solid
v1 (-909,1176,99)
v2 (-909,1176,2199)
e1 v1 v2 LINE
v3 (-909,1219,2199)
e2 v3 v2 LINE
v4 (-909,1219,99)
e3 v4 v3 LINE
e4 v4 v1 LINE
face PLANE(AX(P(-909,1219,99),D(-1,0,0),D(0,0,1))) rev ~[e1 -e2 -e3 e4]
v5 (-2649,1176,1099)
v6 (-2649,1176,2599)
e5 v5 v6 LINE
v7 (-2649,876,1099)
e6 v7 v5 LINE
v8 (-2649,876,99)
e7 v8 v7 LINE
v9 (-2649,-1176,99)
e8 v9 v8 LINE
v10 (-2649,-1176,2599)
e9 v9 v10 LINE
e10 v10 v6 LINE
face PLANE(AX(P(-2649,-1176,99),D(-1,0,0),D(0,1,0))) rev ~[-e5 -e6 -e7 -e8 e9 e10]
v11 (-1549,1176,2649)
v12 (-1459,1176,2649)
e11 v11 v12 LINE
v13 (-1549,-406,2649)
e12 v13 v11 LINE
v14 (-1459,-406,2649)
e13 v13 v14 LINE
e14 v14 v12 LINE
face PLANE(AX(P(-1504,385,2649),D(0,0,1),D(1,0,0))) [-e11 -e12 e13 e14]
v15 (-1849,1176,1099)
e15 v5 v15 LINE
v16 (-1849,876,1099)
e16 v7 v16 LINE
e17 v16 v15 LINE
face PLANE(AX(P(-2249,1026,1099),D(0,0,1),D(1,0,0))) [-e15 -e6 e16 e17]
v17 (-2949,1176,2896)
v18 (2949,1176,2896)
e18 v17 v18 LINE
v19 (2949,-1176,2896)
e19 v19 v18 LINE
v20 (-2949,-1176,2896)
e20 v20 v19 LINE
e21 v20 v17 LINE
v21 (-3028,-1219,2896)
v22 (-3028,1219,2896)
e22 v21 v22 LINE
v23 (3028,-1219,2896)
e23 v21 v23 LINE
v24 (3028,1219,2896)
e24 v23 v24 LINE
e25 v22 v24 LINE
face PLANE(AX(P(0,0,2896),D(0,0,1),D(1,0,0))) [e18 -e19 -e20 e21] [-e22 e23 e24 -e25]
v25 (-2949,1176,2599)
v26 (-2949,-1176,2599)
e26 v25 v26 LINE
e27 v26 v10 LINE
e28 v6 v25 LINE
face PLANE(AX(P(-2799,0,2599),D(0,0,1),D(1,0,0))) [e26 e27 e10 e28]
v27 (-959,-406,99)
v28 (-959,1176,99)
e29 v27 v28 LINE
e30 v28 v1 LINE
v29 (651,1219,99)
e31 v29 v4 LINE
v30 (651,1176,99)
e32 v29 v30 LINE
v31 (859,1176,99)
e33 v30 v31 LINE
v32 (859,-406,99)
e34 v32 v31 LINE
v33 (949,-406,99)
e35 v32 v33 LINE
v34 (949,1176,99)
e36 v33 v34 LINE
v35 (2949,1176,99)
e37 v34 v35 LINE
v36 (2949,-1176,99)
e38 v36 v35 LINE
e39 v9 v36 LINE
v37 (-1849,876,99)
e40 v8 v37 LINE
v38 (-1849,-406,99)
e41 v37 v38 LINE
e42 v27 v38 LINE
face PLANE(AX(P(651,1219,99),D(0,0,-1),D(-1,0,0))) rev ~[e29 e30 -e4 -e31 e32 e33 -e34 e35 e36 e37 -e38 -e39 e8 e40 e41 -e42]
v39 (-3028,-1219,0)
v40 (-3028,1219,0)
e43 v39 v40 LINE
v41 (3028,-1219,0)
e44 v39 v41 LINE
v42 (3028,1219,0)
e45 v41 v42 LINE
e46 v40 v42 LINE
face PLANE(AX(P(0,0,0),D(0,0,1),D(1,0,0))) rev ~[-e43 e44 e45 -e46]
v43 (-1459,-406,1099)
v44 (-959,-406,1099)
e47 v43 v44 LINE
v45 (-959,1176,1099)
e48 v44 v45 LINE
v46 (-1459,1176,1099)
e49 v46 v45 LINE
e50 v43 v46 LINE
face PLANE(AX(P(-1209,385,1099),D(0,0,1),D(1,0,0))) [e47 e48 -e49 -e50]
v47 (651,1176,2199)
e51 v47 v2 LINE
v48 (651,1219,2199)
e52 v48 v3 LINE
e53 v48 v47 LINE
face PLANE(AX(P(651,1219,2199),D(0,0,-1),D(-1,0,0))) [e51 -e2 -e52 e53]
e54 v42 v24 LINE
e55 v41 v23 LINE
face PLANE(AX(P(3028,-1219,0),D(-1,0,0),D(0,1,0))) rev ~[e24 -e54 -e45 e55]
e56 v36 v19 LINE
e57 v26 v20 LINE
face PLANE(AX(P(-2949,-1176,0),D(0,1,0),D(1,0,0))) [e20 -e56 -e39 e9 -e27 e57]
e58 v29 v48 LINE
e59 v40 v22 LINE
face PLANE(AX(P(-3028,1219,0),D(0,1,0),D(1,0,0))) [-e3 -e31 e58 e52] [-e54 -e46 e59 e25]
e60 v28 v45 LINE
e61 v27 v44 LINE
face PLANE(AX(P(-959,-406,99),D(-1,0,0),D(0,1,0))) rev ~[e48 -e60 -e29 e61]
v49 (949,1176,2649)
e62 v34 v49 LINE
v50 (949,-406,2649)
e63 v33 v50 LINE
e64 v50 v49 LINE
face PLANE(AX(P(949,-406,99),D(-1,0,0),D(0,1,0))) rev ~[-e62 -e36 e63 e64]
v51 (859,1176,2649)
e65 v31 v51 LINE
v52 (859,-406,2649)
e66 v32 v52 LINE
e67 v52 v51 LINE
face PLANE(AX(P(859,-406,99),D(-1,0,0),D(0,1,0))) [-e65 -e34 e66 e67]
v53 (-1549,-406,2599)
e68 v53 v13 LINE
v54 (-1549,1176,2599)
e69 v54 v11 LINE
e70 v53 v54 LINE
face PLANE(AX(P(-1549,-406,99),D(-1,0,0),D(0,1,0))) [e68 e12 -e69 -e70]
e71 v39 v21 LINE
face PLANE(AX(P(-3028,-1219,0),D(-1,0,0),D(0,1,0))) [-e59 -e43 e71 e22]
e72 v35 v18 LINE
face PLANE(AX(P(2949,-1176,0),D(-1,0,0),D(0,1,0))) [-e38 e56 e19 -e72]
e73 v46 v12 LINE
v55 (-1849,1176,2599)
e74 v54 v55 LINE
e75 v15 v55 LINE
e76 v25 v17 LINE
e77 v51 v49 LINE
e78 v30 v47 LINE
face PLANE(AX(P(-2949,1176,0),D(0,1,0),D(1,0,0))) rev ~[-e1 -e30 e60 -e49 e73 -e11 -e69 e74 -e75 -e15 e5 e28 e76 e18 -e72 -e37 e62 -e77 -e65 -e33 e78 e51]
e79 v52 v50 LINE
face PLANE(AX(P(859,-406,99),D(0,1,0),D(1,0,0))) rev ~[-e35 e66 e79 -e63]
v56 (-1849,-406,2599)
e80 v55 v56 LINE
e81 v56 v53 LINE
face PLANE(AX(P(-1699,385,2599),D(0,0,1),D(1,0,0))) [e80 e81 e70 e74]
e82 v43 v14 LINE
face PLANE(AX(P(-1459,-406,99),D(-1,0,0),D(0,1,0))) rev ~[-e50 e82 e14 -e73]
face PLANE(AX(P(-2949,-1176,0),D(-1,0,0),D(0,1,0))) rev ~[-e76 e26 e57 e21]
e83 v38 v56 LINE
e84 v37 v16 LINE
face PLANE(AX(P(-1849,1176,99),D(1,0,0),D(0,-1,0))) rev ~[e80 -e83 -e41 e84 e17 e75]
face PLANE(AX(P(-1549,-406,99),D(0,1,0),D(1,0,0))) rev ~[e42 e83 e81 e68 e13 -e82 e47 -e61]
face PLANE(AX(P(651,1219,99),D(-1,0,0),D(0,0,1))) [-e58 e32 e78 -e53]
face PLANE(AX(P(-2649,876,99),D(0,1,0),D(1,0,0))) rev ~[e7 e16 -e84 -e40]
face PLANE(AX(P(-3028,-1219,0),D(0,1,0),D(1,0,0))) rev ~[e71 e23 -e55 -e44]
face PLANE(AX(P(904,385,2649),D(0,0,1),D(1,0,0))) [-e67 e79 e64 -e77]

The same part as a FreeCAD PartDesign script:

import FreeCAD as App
import Part
import Sketcher
from FreeCAD import Vector

doc = App.newDocument("Part")
body = doc.addObject("PartDesign::Body", "Body")

sketch1 = doc.addObject("Sketcher::SketchObject", "Sketch")
body.addObject(sketch1)
sketch1.AttachmentSupport = (doc.XY_Plane, [""])
sketch1.MapMode = "FlatFace"
sketch1.addGeometry(Part.LineSegment(Vector(-3028, 1219, 0), Vector(-3028, -1219, 0)), False)
sketch1.addGeometry(Part.LineSegment(Vector(-3028, -1219, 0), Vector(3028, -1219, 0)), False)
sketch1.addGeometry(Part.LineSegment(Vector(3028, -1219, 0), Vector(3028, 1219, 0)), False)
sketch1.addGeometry(Part.LineSegment(Vector(3028, 1219, 0), Vector(-3028, 1219, 0)), False)
sketch1.addGeometry(Part.LineSegment(Vector(2949, -1176, 0), Vector(-2949, -1176, 0)), False)
sketch1.addGeometry(Part.LineSegment(Vector(-2949, -1176, 0), Vector(-2949, 1176, 0)), False)
sketch1.addGeometry(Part.LineSegment(Vector(-2949, 1176, 0), Vector(2949, 1176, 0)), False)
sketch1.addGeometry(Part.LineSegment(Vector(2949, 1176, 0), Vector(2949, -1176, 0)), False)
sketch1.addConstraint(Sketcher.Constraint("Coincident", 0, 2, 1, 1))
sketch1.addConstraint(Sketcher.Constraint("Coincident", 1, 2, 2, 1))
sketch1.addConstraint(Sketcher.Constraint("Coincident", 2, 2, 3, 1))
sketch1.addConstraint(Sketcher.Constraint("Coincident", 3, 2, 0, 1))
sketch1.addConstraint(Sketcher.Constraint("Coincident", 4, 2, 5, 1))
sketch1.addConstraint(Sketcher.Constraint("Coincident", 5, 2, 6, 1))
sketch1.addConstraint(Sketcher.Constraint("Coincident", 6, 2, 7, 1))
sketch1.addConstraint(Sketcher.Constraint("Coincident", 7, 2, 4, 1))
sketch1.addConstraint(Sketcher.Constraint("Vertical", 0))
sketch1.addConstraint(Sketcher.Constraint("Horizontal", 1))
sketch1.addConstraint(Sketcher.Constraint("Vertical", 2))
sketch1.addConstraint(Sketcher.Constraint("Horizontal", 3))
sketch1.addConstraint(Sketcher.Constraint("Horizontal", 4))
sketch1.addConstraint(Sketcher.Constraint("Vertical", 5))
sketch1.addConstraint(Sketcher.Constraint("Horizontal", 6))
sketch1.addConstraint(Sketcher.Constraint("Vertical", 7))
sketch1.addConstraint(Sketcher.Constraint("Symmetric", 0, 2, 2, 2, -1, 1))
sketch1.addConstraint(Sketcher.Constraint("Symmetric", 4, 2, 6, 2, -1, 1))
sketch1.addConstraint(Sketcher.Constraint("DistanceX", 1, 1, 1, 2, 6056.0))
sketch1.addConstraint(Sketcher.Constraint("DistanceX", 4, 2, 4, 1, 5898.0))
sketch1.addConstraint(Sketcher.Constraint("DistanceY", 0, 2, 0, 1, 2438.0))
sketch1.addConstraint(Sketcher.Constraint("DistanceY", 5, 1, 5, 2, 2352.0))
pad1 = doc.addObject("PartDesign::Pad", "Pad")
body.addObject(pad1)
pad1.Profile = sketch1
pad1.Length = 2896

sketch2 = doc.addObject("Sketcher::SketchObject", "Sketch001")
body.addObject(sketch2)
sketch2.AttachmentSupport = (doc.XY_Plane, [""])
sketch2.MapMode = "FlatFace"
sketch2.addGeometry(Part.LineSegment(Vector(-2949, 1176, 0), Vector(-2949, -1176, 0)), False)
sketch2.addGeometry(Part.LineSegment(Vector(-2949, -1176, 0), Vector(2949, -1176, 0)), False)
sketch2.addGeometry(Part.LineSegment(Vector(2949, -1176, 0), Vector(2949, 1176, 0)), False)
sketch2.addGeometry(Part.LineSegment(Vector(2949, 1176, 0), Vector(-2949, 1176, 0)), False)
sketch2.addConstraint(Sketcher.Constraint("Coincident", 0, 2, 1, 1))
sketch2.addConstraint(Sketcher.Constraint("Coincident", 1, 2, 2, 1))
sketch2.addConstraint(Sketcher.Constraint("Coincident", 2, 2, 3, 1))
sketch2.addConstraint(Sketcher.Constraint("Coincident", 3, 2, 0, 1))
sketch2.addConstraint(Sketcher.Constraint("Vertical", 0))
sketch2.addConstraint(Sketcher.Constraint("Horizontal", 1))
sketch2.addConstraint(Sketcher.Constraint("Vertical", 2))
sketch2.addConstraint(Sketcher.Constraint("Horizontal", 3))
sketch2.addConstraint(Sketcher.Constraint("Symmetric", 0, 2, 2, 2, -1, 1))
sketch2.addConstraint(Sketcher.Constraint("DistanceX", 1, 1, 1, 2, 5898.0))
sketch2.addConstraint(Sketcher.Constraint("DistanceY", 0, 2, 0, 1, 2352.0))
pad2 = doc.addObject("PartDesign::Pad", "Pad001")
body.addObject(pad2)
pad2.Profile = sketch2
pad2.Length = 99

sketch3 = doc.addObject("Sketcher::SketchObject", "Sketch002")
body.addObject(sketch3)
sketch3.AttachmentSupport = (doc.XY_Plane, [""])
sketch3.MapMode = "FlatFace"
sketch3.AttachmentOffset = App.Placement(Vector(0, 0, 99), App.Rotation())
sketch3.addGeometry(Part.LineSegment(Vector(-1549, 1176, 0), Vector(-1549, -406, 0)), False)
sketch3.addGeometry(Part.LineSegment(Vector(-1549, -406, 0), Vector(-1459, -406, 0)), False)
sketch3.addGeometry(Part.LineSegment(Vector(-1459, -406, 0), Vector(-1459, 1176, 0)), False)
sketch3.addGeometry(Part.LineSegment(Vector(-1459, 1176, 0), Vector(-1549, 1176, 0)), False)
sketch3.addGeometry(Part.LineSegment(Vector(859, 1176, 0), Vector(859, -406, 0)), False)
sketch3.addGeometry(Part.LineSegment(Vector(859, -406, 0), Vector(949, -406, 0)), False)
sketch3.addGeometry(Part.LineSegment(Vector(949, -406, 0), Vector(949, 1176, 0)), False)
sketch3.addGeometry(Part.LineSegment(Vector(949, 1176, 0), Vector(859, 1176, 0)), False)
sketch3.addConstraint(Sketcher.Constraint("Coincident", 0, 2, 1, 1))
sketch3.addConstraint(Sketcher.Constraint("Coincident", 1, 2, 2, 1))
sketch3.addConstraint(Sketcher.Constraint("Coincident", 2, 2, 3, 1))
sketch3.addConstraint(Sketcher.Constraint("Coincident", 3, 2, 0, 1))
sketch3.addConstraint(Sketcher.Constraint("Coincident", 4, 2, 5, 1))
sketch3.addConstraint(Sketcher.Constraint("Coincident", 5, 2, 6, 1))
sketch3.addConstraint(Sketcher.Constraint("Coincident", 6, 2, 7, 1))
sketch3.addConstraint(Sketcher.Constraint("Coincident", 7, 2, 4, 1))
sketch3.addConstraint(Sketcher.Constraint("Vertical", 0))
sketch3.addConstraint(Sketcher.Constraint("Horizontal", 1))
sketch3.addConstraint(Sketcher.Constraint("Vertical", 2))
sketch3.addConstraint(Sketcher.Constraint("Horizontal", 3))
sketch3.addConstraint(Sketcher.Constraint("Vertical", 4))
sketch3.addConstraint(Sketcher.Constraint("Horizontal", 5))
sketch3.addConstraint(Sketcher.Constraint("Vertical", 6))
sketch3.addConstraint(Sketcher.Constraint("Horizontal", 7))
sketch3.addConstraint(Sketcher.Constraint("Horizontal", 1, 2, 4, 2))
sketch3.addConstraint(Sketcher.Constraint("Horizontal", 3, 2, 6, 2))
sketch3.addConstraint(Sketcher.Constraint("Equal", 3, 5))
sketch3.addConstraint(Sketcher.Constraint("DistanceX", 1, 1, 1, 2, 90.0))
sketch3.addConstraint(Sketcher.Constraint("DistanceY", 0, 2, 0, 1, 1582.0))
sketch3.addConstraint(Sketcher.Constraint("DistanceX", 0, 2, -1, 1, 1549.0))
sketch3.addConstraint(Sketcher.Constraint("DistanceY", 0, 2, -1, 1, 406.0))
sketch3.addConstraint(Sketcher.Constraint("DistanceX", -1, 1, 4, 2, 859.0))
pad3 = doc.addObject("PartDesign::Pad", "Pad002")
body.addObject(pad3)
pad3.Profile = sketch3
pad3.Length = 2550

sketch4 = doc.addObject("Sketcher::SketchObject", "Sketch003")
body.addObject(sketch4)
sketch4.AttachmentSupport = (doc.XZ_Plane, [""])
sketch4.MapMode = "FlatFace"
sketch4.AttachmentOffset = App.Placement(Vector(0, 0, -1219), App.Rotation())
sketch4.addGeometry(Part.LineSegment(Vector(651, 2199, 0), Vector(651, 99, 0)), False)
sketch4.addGeometry(Part.LineSegment(Vector(651, 99, 0), Vector(-909, 99, 0)), False)
sketch4.addGeometry(Part.LineSegment(Vector(-909, 99, 0), Vector(-909, 2199, 0)), False)
sketch4.addGeometry(Part.LineSegment(Vector(-909, 2199, 0), Vector(651, 2199, 0)), False)
sketch4.addConstraint(Sketcher.Constraint("Coincident", 0, 2, 1, 1))
sketch4.addConstraint(Sketcher.Constraint("Coincident", 1, 2, 2, 1))
sketch4.addConstraint(Sketcher.Constraint("Coincident", 2, 2, 3, 1))
sketch4.addConstraint(Sketcher.Constraint("Coincident", 3, 2, 0, 1))
sketch4.addConstraint(Sketcher.Constraint("Vertical", 0))
sketch4.addConstraint(Sketcher.Constraint("Horizontal", 1))
sketch4.addConstraint(Sketcher.Constraint("Vertical", 2))
sketch4.addConstraint(Sketcher.Constraint("Horizontal", 3))
sketch4.addConstraint(Sketcher.Constraint("DistanceX", 1, 2, 1, 1, 1560.0))
sketch4.addConstraint(Sketcher.Constraint("DistanceY", 0, 2, 0, 1, 2100.0))
sketch4.addConstraint(Sketcher.Constraint("DistanceX", -1, 1, 0, 2, 651.0))
sketch4.addConstraint(Sketcher.Constraint("DistanceY", -1, 1, 0, 2, 99.0))
pocket1 = doc.addObject("PartDesign::Pocket", "Pocket")
body.addObject(pocket1)
pocket1.Profile = sketch4
pocket1.Length = 49
pocket1.Reversed = True

sketch5 = doc.addObject("Sketcher::SketchObject", "Sketch004")
body.addObject(sketch5)
sketch5.AttachmentSupport = (doc.XY_Plane, [""])
sketch5.MapMode = "FlatFace"
sketch5.AttachmentOffset = App.Placement(Vector(0, 0, 99), App.Rotation())
sketch5.addGeometry(Part.LineSegment(Vector(-2649, 1176, 0), Vector(-2949, 1176, 0)), False)
sketch5.addGeometry(Part.LineSegment(Vector(-2949, 1176, 0), Vector(-2949, -1176, 0)), False)
sketch5.addGeometry(Part.LineSegment(Vector(-2949, -1176, 0), Vector(-2649, -1176, 0)), False)
sketch5.addGeometry(Part.LineSegment(Vector(-2649, -1176, 0), Vector(-2649, 1176, 0)), False)
sketch5.addGeometry(Part.LineSegment(Vector(-1549, 1176, 0), Vector(-1849, 1176, 0)), False)
sketch5.addGeometry(Part.LineSegment(Vector(-1849, 1176, 0), Vector(-1849, -406, 0)), False)
sketch5.addGeometry(Part.LineSegment(Vector(-1849, -406, 0), Vector(-1549, -406, 0)), False)
sketch5.addGeometry(Part.LineSegment(Vector(-1549, -406, 0), Vector(-1549, 1176, 0)), False)
sketch5.addConstraint(Sketcher.Constraint("Coincident", 0, 2, 1, 1))
sketch5.addConstraint(Sketcher.Constraint("Coincident", 1, 2, 2, 1))
sketch5.addConstraint(Sketcher.Constraint("Coincident", 2, 2, 3, 1))
sketch5.addConstraint(Sketcher.Constraint("Coincident", 3, 2, 0, 1))
sketch5.addConstraint(Sketcher.Constraint("Coincident", 4, 2, 5, 1))
sketch5.addConstraint(Sketcher.Constraint("Coincident", 5, 2, 6, 1))
sketch5.addConstraint(Sketcher.Constraint("Coincident", 6, 2, 7, 1))
sketch5.addConstraint(Sketcher.Constraint("Coincident", 7, 2, 4, 1))
sketch5.addConstraint(Sketcher.Constraint("Horizontal", 0))
sketch5.addConstraint(Sketcher.Constraint("Vertical", 1))
sketch5.addConstraint(Sketcher.Constraint("Horizontal", 2))
sketch5.addConstraint(Sketcher.Constraint("Vertical", 3))
sketch5.addConstraint(Sketcher.Constraint("Horizontal", 4))
sketch5.addConstraint(Sketcher.Constraint("Vertical", 5))
sketch5.addConstraint(Sketcher.Constraint("Horizontal", 6))
sketch5.addConstraint(Sketcher.Constraint("Vertical", 7))
sketch5.addConstraint(Sketcher.Constraint("Horizontal", 3, 2, 4, 2))
sketch5.addConstraint(Sketcher.Constraint("Equal", 2, 4))
sketch5.addConstraint(Sketcher.Constraint("DistanceX", 0, 2, 0, 1, 300.0))
sketch5.addConstraint(Sketcher.Constraint("DistanceY", 1, 2, 1, 1, 2352.0))
sketch5.addConstraint(Sketcher.Constraint("DistanceY", 5, 2, 5, 1, 1582.0))
sketch5.addConstraint(Sketcher.Constraint("DistanceX", 0, 2, -1, 1, 2949.0))
sketch5.addConstraint(Sketcher.Constraint("DistanceY", -1, 1, 0, 2, 1176.0))
sketch5.addConstraint(Sketcher.Constraint("DistanceX", 4, 2, -1, 1, 1849.0))
pad4 = doc.addObject("PartDesign::Pad", "Pad003")
body.addObject(pad4)
pad4.Profile = sketch5
pad4.Length = 2500

sketch6 = doc.addObject("Sketcher::SketchObject", "Sketch005")
body.addObject(sketch6)
sketch6.AttachmentSupport = (doc.XY_Plane, [""])
sketch6.MapMode = "FlatFace"
sketch6.AttachmentOffset = App.Placement(Vector(0, 0, 99), App.Rotation())
sketch6.addGeometry(Part.LineSegment(Vector(-2649, 1176, 0), Vector(-2649, 876, 0)), False)
sketch6.addGeometry(Part.LineSegment(Vector(-2649, 876, 0), Vector(-1849, 876, 0)), False)
sketch6.addGeometry(Part.LineSegment(Vector(-1849, 876, 0), Vector(-1849, 1176, 0)), False)
sketch6.addGeometry(Part.LineSegment(Vector(-1849, 1176, 0), Vector(-2649, 1176, 0)), False)
sketch6.addGeometry(Part.LineSegment(Vector(-1459, 1176, 0), Vector(-1459, -406, 0)), False)
sketch6.addGeometry(Part.LineSegment(Vector(-1459, -406, 0), Vector(-959, -406, 0)), False)
sketch6.addGeometry(Part.LineSegment(Vector(-959, -406, 0), Vector(-959, 1176, 0)), False)
sketch6.addGeometry(Part.LineSegment(Vector(-959, 1176, 0), Vector(-1459, 1176, 0)), False)
sketch6.addConstraint(Sketcher.Constraint("Coincident", 0, 2, 1, 1))
sketch6.addConstraint(Sketcher.Constraint("Coincident", 1, 2, 2, 1))
sketch6.addConstraint(Sketcher.Constraint("Coincident", 2, 2, 3, 1))
sketch6.addConstraint(Sketcher.Constraint("Coincident", 3, 2, 0, 1))
sketch6.addConstraint(Sketcher.Constraint("Coincident", 4, 2, 5, 1))
sketch6.addConstraint(Sketcher.Constraint("Coincident", 5, 2, 6, 1))
sketch6.addConstraint(Sketcher.Constraint("Coincident", 6, 2, 7, 1))
sketch6.addConstraint(Sketcher.Constraint("Coincident", 7, 2, 4, 1))
sketch6.addConstraint(Sketcher.Constraint("Vertical", 0))
sketch6.addConstraint(Sketcher.Constraint("Horizontal", 1))
sketch6.addConstraint(Sketcher.Constraint("Vertical", 2))
sketch6.addConstraint(Sketcher.Constraint("Horizontal", 3))
sketch6.addConstraint(Sketcher.Constraint("Vertical", 4))
sketch6.addConstraint(Sketcher.Constraint("Horizontal", 5))
sketch6.addConstraint(Sketcher.Constraint("Vertical", 6))
sketch6.addConstraint(Sketcher.Constraint("Horizontal", 7))
sketch6.addConstraint(Sketcher.Constraint("Horizontal", 3, 2, 6, 2))
sketch6.addConstraint(Sketcher.Constraint("DistanceX", 1, 1, 1, 2, 800.0))
sketch6.addConstraint(Sketcher.Constraint("DistanceX", 5, 1, 5, 2, 500.0))
sketch6.addConstraint(Sketcher.Constraint("DistanceY", 0, 2, 0, 1, 300.0))
sketch6.addConstraint(Sketcher.Constraint("DistanceY", 4, 2, 4, 1, 1582.0))
sketch6.addConstraint(Sketcher.Constraint("DistanceX", 0, 2, -1, 1, 2649.0))
sketch6.addConstraint(Sketcher.Constraint("DistanceY", -1, 1, 0, 2, 876.0))
sketch6.addConstraint(Sketcher.Constraint("DistanceX", 4, 2, -1, 1, 1459.0))
pad5 = doc.addObject("PartDesign::Pad", "Pad004")
body.addObject(pad5)
pad5.Profile = sketch6
pad5.Length = 1000

doc.recompute()
